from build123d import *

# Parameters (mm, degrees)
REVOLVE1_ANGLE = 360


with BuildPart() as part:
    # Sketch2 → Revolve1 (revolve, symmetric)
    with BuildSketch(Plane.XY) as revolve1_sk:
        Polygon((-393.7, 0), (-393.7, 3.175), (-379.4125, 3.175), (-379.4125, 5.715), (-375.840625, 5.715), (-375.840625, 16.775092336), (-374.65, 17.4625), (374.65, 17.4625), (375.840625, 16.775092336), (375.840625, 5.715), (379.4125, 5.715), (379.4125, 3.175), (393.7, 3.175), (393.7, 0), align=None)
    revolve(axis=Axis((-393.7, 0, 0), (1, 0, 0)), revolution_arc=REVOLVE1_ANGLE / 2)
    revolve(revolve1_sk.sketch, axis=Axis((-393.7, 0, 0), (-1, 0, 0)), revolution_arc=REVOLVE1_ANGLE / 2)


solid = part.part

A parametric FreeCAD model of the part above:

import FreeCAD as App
import Part
import Sketcher
Q = App.Units.Quantity

doc = App.newDocument("Part")
body = doc.addObject("PartDesign::Body", "Body")

sketch1 = body.newObject("Sketcher::SketchObject", "Sketch")
sketch1.AttachmentSupport = (doc.getObject("XY_Plane"), [""])
sketch1.MapMode = "FlatFace"
sketch1.addGeometry([
    Part.LineSegment(App.Vector(-393.7, 3.2, 0), App.Vector(-393.7, 0, 0)),
    Part.LineSegment(App.Vector(-393.7, 0, 0), App.Vector(393.7, 0, 0)),
    Part.LineSegment(App.Vector(393.7, 0, 0), App.Vector(393.7, 3.2, 0)),
    Part.LineSegment(App.Vector(393.7, 3.2, 0), App.Vector(379.4, 3.2, 0)),
    Part.LineSegment(App.Vector(379.4, 3.2, 0), App.Vector(379.4, 5.7, 0)),
    Part.LineSegment(App.Vector(379.4, 5.7, 0), App.Vector(375.8, 5.7, 0)),
    Part.LineSegment(App.Vector(375.8, 5.7, 0), App.Vector(375.8, 16.8, 0)),
    Part.LineSegment(App.Vector(375.8, 16.8, 0), App.Vector(374.6, 17.5, 0)),
    Part.LineSegment(App.Vector(374.6, 17.5, 0), App.Vector(-374.6, 17.5, 0)),
    Part.LineSegment(App.Vector(-374.6, 17.5, 0), App.Vector(-375.8, 16.8, 0)),
    Part.LineSegment(App.Vector(-375.8, 16.8, 0), App.Vector(-375.8, 5.7, 0)),
    Part.LineSegment(App.Vector(-375.8, 5.7, 0), App.Vector(-379.4, 5.7, 0)),
    Part.LineSegment(App.Vector(-379.4, 5.7, 0), App.Vector(-379.4, 3.2, 0)),
    Part.LineSegment(App.Vector(-379.4, 3.2, 0), App.Vector(-393.7, 3.2, 0)),
], False)
sketch1.addConstraint([
    Sketcher.Constraint("Coincident", 0, 2, 1, 1),
    Sketcher.Constraint("Coincident", 1, 2, 2, 1),
    Sketcher.Constraint("Coincident", 2, 2, 3, 1),
    Sketcher.Constraint("Coincident", 3, 2, 4, 1),
    Sketcher.Constraint("Coincident", 4, 2, 5, 1),
    Sketcher.Constraint("Coincident", 5, 2, 6, 1),
    Sketcher.Constraint("Coincident", 6, 2, 7, 1),
    Sketcher.Constraint("Coincident", 7, 2, 8, 1),
    Sketcher.Constraint("Coincident", 8, 2, 9, 1),
    Sketcher.Constraint("Coincident", 9, 2, 10, 1),
    Sketcher.Constraint("Coincident", 10, 2, 11, 1),
    Sketcher.Constraint("Coincident", 11, 2, 12, 1),
    Sketcher.Constraint("Coincident", 12, 2, 13, 1),
    Sketcher.Constraint("Coincident", 13, 2, 0, 1),
    Sketcher.Constraint("Vertical", 0),
    Sketcher.Constraint("Horizontal", 1),
    Sketcher.Constraint("Vertical", 2),
    Sketcher.Constraint("Horizontal", 3),
    Sketcher.Constraint("Vertical", 4),
    Sketcher.Constraint("Horizontal", 5),
    Sketcher.Constraint("Vertical", 6),
    Sketcher.Constraint("Horizontal", 8),
    Sketcher.Constraint("Vertical", 10),
    Sketcher.Constraint("Horizontal", 11),
    Sketcher.Constraint("Vertical", 12),
    Sketcher.Constraint("Horizontal", 13),
    Sketcher.Constraint("Symmetric", 0, 2, 1, 2, -1, 1),
    Sketcher.Constraint("Symmetric", 6, 2, 9, 2, -2),
    Sketcher.Constraint("Symmetric", 4, 2, 11, 2, -2),
    Sketcher.Constraint("Horizontal", 3, 2, 12, 2),
    Sketcher.Constraint("Equal", 7, 9),
    Sketcher.Constraint("DistanceX", 1, 1, 1, 2, Q("31 in")),
    Sketcher.Constraint("DistanceX", 8, 2, 8, 1, Q("29.5 in")),
    Sketcher.Constraint("DistanceY", 4, 1, 4, 2, Q("0.1 in")),
    Sketcher.Constraint("Angle", 7, Q("150 deg")),
    Sketcher.Constraint("DistanceX", 3, 2, 3, 1, Q("0.5625 in")),
    Sketcher.Constraint("DistanceX", 5, 2, 5, 1, Q("0.140625 in")),
    Sketcher.Constraint("DistanceY", 0, 2, 0, 1, Q("0.125 in")),
    Sketcher.Constraint("DistanceY", -1, 1, 7, 2, Q("0.6875 in")),
])
revolution = body.newObject("PartDesign::Revolution", "Revolution")
revolution.Profile = sketch1
revolution.ReferenceAxis = (sketch1, ["H_Axis"])
revolution.Angle = 180

sketch2 = body.newObject("Sketcher::SketchObject", "Sketch001")
sketch2.AttachmentSupport = (doc.getObject("XY_Plane"), [""])
sketch2.MapMode = "FlatFace"
sketch2.addGeometry([
    Part.LineSegment(App.Vector(-393.7, 3.2, 0), App.Vector(-393.7, 0, 0)),
    Part.LineSegment(App.Vector(-393.7, 0, 0), App.Vector(393.7, 0, 0)),
    Part.LineSegment(App.Vector(393.7, 0, 0), App.Vector(393.7, 3.2, 0)),
    Part.LineSegment(App.Vector(393.7, 3.2, 0), App.Vector(379.4, 3.2, 0)),
    Part.LineSegment(App.Vector(379.4, 3.2, 0), App.Vector(379.4, 5.7, 0)),
    Part.LineSegment(App.Vector(379.4, 5.7, 0), App.Vector(375.8, 5.7, 0)),
    Part.LineSegment(App.Vector(375.8, 5.7, 0), App.Vector(375.8, 16.8, 0)),
    Part.LineSegment(App.Vector(375.8, 16.8, 0), App.Vector(374.6, 17.5, 0)),
    Part.LineSegment(App.Vector(374.6, 17.5, 0), App.Vector(-374.6, 17.5, 0)),
    Part.LineSegment(App.Vector(-374.6, 17.5, 0), App.Vector(-375.8, 16.8, 0)),
    Part.LineSegment(App.Vector(-375.8, 16.8, 0), App.Vector(-375.8, 5.7, 0)),
    Part.LineSegment(App.Vector(-375.8, 5.7, 0), App.Vector(-379.4, 5.7, 0)),
    Part.LineSegment(App.Vector(-379.4, 5.7, 0), App.Vector(-379.4, 3.2, 0)),
    Part.LineSegment(App.Vector(-379.4, 3.2, 0), App.Vector(-393.7, 3.2, 0)),
], False)
sketch2.addConstraint([
    Sketcher.Constraint("Coincident", 0, 2, 1, 1),
    Sketcher.Constraint("Coincident", 1, 2, 2, 1),
    Sketcher.Constraint("Coincident", 2, 2, 3, 1),
    Sketcher.Constraint("Coincident", 3, 2, 4, 1),
    Sketcher.Constraint("Coincident", 4, 2, 5, 1),
    Sketcher.Constraint("Coincident", 5, 2, 6, 1),
    Sketcher.Constraint("Coincident", 6, 2, 7, 1),
    Sketcher.Constraint("Coincident", 7, 2, 8, 1),
    Sketcher.Constraint("Coincident", 8, 2, 9, 1),
    Sketcher.Constraint("Coincident", 9, 2, 10, 1),
    Sketcher.Constraint("Coincident", 10, 2, 11, 1),
    Sketcher.Constraint("Coincident", 11, 2, 12, 1),
    Sketcher.Constraint("Coincident", 12, 2, 13, 1),
    Sketcher.Constraint("Coincident", 13, 2, 0, 1),
    Sketcher.Constraint("Vertical", 0),
    Sketcher.Constraint("Horizontal", 1),
    Sketcher.Constraint("Vertical", 2),
    Sketcher.Constraint("Horizontal", 3),
    Sketcher.Constraint("Vertical", 4),
    Sketcher.Constraint("Horizontal", 5),
    Sketcher.Constraint("Vertical", 6),
    Sketcher.Constraint("Horizontal", 8),
    Sketcher.Constraint("Vertical", 10),
    Sketcher.Constraint("Horizontal", 11),
    Sketcher.Constraint("Vertical", 12),
    Sketcher.Constraint("Horizontal", 13),
    Sketcher.Constraint("Symmetric", 0, 2, 1, 2, -1, 1),
    Sketcher.Constraint("Symmetric", 6, 2, 9, 2, -2),
    Sketcher.Constraint("Symmetric", 4, 2, 11, 2, -2),
    Sketcher.Constraint("Horizontal", 3, 2, 12, 2),
    Sketcher.Constraint("Equal", 7, 9),
    Sketcher.Constraint("DistanceX", 1, 1, 1, 2, Q("31 in")),
    Sketcher.Constraint("DistanceX", 8, 2, 8, 1, Q("29.5 in")),
    Sketcher.Constraint("DistanceY", 4, 1, 4, 2, Q("0.1 in")),
    Sketcher.Constraint("Angle", 7, Q("150 deg")),
    Sketcher.Constraint("DistanceX", 3, 2, 3, 1, Q("0.5625 in")),
    Sketcher.Constraint("DistanceX", 5, 2, 5, 1, Q("0.140625 in")),
    Sketcher.Constraint("DistanceY", 0, 2, 0, 1, Q("0.125 in")),
    Sketcher.Constraint("DistanceY", -1, 1, 7, 2, Q("0.6875 in")),
])
revolution2 = body.newObject("PartDesign::Revolution", "Revolution001")
revolution2.Profile = sketch2
revolution2.ReferenceAxis = (sketch2, ["H_Axis"])
revolution2.Angle = 180
revolution2.Reversed = True

doc.recompute()
